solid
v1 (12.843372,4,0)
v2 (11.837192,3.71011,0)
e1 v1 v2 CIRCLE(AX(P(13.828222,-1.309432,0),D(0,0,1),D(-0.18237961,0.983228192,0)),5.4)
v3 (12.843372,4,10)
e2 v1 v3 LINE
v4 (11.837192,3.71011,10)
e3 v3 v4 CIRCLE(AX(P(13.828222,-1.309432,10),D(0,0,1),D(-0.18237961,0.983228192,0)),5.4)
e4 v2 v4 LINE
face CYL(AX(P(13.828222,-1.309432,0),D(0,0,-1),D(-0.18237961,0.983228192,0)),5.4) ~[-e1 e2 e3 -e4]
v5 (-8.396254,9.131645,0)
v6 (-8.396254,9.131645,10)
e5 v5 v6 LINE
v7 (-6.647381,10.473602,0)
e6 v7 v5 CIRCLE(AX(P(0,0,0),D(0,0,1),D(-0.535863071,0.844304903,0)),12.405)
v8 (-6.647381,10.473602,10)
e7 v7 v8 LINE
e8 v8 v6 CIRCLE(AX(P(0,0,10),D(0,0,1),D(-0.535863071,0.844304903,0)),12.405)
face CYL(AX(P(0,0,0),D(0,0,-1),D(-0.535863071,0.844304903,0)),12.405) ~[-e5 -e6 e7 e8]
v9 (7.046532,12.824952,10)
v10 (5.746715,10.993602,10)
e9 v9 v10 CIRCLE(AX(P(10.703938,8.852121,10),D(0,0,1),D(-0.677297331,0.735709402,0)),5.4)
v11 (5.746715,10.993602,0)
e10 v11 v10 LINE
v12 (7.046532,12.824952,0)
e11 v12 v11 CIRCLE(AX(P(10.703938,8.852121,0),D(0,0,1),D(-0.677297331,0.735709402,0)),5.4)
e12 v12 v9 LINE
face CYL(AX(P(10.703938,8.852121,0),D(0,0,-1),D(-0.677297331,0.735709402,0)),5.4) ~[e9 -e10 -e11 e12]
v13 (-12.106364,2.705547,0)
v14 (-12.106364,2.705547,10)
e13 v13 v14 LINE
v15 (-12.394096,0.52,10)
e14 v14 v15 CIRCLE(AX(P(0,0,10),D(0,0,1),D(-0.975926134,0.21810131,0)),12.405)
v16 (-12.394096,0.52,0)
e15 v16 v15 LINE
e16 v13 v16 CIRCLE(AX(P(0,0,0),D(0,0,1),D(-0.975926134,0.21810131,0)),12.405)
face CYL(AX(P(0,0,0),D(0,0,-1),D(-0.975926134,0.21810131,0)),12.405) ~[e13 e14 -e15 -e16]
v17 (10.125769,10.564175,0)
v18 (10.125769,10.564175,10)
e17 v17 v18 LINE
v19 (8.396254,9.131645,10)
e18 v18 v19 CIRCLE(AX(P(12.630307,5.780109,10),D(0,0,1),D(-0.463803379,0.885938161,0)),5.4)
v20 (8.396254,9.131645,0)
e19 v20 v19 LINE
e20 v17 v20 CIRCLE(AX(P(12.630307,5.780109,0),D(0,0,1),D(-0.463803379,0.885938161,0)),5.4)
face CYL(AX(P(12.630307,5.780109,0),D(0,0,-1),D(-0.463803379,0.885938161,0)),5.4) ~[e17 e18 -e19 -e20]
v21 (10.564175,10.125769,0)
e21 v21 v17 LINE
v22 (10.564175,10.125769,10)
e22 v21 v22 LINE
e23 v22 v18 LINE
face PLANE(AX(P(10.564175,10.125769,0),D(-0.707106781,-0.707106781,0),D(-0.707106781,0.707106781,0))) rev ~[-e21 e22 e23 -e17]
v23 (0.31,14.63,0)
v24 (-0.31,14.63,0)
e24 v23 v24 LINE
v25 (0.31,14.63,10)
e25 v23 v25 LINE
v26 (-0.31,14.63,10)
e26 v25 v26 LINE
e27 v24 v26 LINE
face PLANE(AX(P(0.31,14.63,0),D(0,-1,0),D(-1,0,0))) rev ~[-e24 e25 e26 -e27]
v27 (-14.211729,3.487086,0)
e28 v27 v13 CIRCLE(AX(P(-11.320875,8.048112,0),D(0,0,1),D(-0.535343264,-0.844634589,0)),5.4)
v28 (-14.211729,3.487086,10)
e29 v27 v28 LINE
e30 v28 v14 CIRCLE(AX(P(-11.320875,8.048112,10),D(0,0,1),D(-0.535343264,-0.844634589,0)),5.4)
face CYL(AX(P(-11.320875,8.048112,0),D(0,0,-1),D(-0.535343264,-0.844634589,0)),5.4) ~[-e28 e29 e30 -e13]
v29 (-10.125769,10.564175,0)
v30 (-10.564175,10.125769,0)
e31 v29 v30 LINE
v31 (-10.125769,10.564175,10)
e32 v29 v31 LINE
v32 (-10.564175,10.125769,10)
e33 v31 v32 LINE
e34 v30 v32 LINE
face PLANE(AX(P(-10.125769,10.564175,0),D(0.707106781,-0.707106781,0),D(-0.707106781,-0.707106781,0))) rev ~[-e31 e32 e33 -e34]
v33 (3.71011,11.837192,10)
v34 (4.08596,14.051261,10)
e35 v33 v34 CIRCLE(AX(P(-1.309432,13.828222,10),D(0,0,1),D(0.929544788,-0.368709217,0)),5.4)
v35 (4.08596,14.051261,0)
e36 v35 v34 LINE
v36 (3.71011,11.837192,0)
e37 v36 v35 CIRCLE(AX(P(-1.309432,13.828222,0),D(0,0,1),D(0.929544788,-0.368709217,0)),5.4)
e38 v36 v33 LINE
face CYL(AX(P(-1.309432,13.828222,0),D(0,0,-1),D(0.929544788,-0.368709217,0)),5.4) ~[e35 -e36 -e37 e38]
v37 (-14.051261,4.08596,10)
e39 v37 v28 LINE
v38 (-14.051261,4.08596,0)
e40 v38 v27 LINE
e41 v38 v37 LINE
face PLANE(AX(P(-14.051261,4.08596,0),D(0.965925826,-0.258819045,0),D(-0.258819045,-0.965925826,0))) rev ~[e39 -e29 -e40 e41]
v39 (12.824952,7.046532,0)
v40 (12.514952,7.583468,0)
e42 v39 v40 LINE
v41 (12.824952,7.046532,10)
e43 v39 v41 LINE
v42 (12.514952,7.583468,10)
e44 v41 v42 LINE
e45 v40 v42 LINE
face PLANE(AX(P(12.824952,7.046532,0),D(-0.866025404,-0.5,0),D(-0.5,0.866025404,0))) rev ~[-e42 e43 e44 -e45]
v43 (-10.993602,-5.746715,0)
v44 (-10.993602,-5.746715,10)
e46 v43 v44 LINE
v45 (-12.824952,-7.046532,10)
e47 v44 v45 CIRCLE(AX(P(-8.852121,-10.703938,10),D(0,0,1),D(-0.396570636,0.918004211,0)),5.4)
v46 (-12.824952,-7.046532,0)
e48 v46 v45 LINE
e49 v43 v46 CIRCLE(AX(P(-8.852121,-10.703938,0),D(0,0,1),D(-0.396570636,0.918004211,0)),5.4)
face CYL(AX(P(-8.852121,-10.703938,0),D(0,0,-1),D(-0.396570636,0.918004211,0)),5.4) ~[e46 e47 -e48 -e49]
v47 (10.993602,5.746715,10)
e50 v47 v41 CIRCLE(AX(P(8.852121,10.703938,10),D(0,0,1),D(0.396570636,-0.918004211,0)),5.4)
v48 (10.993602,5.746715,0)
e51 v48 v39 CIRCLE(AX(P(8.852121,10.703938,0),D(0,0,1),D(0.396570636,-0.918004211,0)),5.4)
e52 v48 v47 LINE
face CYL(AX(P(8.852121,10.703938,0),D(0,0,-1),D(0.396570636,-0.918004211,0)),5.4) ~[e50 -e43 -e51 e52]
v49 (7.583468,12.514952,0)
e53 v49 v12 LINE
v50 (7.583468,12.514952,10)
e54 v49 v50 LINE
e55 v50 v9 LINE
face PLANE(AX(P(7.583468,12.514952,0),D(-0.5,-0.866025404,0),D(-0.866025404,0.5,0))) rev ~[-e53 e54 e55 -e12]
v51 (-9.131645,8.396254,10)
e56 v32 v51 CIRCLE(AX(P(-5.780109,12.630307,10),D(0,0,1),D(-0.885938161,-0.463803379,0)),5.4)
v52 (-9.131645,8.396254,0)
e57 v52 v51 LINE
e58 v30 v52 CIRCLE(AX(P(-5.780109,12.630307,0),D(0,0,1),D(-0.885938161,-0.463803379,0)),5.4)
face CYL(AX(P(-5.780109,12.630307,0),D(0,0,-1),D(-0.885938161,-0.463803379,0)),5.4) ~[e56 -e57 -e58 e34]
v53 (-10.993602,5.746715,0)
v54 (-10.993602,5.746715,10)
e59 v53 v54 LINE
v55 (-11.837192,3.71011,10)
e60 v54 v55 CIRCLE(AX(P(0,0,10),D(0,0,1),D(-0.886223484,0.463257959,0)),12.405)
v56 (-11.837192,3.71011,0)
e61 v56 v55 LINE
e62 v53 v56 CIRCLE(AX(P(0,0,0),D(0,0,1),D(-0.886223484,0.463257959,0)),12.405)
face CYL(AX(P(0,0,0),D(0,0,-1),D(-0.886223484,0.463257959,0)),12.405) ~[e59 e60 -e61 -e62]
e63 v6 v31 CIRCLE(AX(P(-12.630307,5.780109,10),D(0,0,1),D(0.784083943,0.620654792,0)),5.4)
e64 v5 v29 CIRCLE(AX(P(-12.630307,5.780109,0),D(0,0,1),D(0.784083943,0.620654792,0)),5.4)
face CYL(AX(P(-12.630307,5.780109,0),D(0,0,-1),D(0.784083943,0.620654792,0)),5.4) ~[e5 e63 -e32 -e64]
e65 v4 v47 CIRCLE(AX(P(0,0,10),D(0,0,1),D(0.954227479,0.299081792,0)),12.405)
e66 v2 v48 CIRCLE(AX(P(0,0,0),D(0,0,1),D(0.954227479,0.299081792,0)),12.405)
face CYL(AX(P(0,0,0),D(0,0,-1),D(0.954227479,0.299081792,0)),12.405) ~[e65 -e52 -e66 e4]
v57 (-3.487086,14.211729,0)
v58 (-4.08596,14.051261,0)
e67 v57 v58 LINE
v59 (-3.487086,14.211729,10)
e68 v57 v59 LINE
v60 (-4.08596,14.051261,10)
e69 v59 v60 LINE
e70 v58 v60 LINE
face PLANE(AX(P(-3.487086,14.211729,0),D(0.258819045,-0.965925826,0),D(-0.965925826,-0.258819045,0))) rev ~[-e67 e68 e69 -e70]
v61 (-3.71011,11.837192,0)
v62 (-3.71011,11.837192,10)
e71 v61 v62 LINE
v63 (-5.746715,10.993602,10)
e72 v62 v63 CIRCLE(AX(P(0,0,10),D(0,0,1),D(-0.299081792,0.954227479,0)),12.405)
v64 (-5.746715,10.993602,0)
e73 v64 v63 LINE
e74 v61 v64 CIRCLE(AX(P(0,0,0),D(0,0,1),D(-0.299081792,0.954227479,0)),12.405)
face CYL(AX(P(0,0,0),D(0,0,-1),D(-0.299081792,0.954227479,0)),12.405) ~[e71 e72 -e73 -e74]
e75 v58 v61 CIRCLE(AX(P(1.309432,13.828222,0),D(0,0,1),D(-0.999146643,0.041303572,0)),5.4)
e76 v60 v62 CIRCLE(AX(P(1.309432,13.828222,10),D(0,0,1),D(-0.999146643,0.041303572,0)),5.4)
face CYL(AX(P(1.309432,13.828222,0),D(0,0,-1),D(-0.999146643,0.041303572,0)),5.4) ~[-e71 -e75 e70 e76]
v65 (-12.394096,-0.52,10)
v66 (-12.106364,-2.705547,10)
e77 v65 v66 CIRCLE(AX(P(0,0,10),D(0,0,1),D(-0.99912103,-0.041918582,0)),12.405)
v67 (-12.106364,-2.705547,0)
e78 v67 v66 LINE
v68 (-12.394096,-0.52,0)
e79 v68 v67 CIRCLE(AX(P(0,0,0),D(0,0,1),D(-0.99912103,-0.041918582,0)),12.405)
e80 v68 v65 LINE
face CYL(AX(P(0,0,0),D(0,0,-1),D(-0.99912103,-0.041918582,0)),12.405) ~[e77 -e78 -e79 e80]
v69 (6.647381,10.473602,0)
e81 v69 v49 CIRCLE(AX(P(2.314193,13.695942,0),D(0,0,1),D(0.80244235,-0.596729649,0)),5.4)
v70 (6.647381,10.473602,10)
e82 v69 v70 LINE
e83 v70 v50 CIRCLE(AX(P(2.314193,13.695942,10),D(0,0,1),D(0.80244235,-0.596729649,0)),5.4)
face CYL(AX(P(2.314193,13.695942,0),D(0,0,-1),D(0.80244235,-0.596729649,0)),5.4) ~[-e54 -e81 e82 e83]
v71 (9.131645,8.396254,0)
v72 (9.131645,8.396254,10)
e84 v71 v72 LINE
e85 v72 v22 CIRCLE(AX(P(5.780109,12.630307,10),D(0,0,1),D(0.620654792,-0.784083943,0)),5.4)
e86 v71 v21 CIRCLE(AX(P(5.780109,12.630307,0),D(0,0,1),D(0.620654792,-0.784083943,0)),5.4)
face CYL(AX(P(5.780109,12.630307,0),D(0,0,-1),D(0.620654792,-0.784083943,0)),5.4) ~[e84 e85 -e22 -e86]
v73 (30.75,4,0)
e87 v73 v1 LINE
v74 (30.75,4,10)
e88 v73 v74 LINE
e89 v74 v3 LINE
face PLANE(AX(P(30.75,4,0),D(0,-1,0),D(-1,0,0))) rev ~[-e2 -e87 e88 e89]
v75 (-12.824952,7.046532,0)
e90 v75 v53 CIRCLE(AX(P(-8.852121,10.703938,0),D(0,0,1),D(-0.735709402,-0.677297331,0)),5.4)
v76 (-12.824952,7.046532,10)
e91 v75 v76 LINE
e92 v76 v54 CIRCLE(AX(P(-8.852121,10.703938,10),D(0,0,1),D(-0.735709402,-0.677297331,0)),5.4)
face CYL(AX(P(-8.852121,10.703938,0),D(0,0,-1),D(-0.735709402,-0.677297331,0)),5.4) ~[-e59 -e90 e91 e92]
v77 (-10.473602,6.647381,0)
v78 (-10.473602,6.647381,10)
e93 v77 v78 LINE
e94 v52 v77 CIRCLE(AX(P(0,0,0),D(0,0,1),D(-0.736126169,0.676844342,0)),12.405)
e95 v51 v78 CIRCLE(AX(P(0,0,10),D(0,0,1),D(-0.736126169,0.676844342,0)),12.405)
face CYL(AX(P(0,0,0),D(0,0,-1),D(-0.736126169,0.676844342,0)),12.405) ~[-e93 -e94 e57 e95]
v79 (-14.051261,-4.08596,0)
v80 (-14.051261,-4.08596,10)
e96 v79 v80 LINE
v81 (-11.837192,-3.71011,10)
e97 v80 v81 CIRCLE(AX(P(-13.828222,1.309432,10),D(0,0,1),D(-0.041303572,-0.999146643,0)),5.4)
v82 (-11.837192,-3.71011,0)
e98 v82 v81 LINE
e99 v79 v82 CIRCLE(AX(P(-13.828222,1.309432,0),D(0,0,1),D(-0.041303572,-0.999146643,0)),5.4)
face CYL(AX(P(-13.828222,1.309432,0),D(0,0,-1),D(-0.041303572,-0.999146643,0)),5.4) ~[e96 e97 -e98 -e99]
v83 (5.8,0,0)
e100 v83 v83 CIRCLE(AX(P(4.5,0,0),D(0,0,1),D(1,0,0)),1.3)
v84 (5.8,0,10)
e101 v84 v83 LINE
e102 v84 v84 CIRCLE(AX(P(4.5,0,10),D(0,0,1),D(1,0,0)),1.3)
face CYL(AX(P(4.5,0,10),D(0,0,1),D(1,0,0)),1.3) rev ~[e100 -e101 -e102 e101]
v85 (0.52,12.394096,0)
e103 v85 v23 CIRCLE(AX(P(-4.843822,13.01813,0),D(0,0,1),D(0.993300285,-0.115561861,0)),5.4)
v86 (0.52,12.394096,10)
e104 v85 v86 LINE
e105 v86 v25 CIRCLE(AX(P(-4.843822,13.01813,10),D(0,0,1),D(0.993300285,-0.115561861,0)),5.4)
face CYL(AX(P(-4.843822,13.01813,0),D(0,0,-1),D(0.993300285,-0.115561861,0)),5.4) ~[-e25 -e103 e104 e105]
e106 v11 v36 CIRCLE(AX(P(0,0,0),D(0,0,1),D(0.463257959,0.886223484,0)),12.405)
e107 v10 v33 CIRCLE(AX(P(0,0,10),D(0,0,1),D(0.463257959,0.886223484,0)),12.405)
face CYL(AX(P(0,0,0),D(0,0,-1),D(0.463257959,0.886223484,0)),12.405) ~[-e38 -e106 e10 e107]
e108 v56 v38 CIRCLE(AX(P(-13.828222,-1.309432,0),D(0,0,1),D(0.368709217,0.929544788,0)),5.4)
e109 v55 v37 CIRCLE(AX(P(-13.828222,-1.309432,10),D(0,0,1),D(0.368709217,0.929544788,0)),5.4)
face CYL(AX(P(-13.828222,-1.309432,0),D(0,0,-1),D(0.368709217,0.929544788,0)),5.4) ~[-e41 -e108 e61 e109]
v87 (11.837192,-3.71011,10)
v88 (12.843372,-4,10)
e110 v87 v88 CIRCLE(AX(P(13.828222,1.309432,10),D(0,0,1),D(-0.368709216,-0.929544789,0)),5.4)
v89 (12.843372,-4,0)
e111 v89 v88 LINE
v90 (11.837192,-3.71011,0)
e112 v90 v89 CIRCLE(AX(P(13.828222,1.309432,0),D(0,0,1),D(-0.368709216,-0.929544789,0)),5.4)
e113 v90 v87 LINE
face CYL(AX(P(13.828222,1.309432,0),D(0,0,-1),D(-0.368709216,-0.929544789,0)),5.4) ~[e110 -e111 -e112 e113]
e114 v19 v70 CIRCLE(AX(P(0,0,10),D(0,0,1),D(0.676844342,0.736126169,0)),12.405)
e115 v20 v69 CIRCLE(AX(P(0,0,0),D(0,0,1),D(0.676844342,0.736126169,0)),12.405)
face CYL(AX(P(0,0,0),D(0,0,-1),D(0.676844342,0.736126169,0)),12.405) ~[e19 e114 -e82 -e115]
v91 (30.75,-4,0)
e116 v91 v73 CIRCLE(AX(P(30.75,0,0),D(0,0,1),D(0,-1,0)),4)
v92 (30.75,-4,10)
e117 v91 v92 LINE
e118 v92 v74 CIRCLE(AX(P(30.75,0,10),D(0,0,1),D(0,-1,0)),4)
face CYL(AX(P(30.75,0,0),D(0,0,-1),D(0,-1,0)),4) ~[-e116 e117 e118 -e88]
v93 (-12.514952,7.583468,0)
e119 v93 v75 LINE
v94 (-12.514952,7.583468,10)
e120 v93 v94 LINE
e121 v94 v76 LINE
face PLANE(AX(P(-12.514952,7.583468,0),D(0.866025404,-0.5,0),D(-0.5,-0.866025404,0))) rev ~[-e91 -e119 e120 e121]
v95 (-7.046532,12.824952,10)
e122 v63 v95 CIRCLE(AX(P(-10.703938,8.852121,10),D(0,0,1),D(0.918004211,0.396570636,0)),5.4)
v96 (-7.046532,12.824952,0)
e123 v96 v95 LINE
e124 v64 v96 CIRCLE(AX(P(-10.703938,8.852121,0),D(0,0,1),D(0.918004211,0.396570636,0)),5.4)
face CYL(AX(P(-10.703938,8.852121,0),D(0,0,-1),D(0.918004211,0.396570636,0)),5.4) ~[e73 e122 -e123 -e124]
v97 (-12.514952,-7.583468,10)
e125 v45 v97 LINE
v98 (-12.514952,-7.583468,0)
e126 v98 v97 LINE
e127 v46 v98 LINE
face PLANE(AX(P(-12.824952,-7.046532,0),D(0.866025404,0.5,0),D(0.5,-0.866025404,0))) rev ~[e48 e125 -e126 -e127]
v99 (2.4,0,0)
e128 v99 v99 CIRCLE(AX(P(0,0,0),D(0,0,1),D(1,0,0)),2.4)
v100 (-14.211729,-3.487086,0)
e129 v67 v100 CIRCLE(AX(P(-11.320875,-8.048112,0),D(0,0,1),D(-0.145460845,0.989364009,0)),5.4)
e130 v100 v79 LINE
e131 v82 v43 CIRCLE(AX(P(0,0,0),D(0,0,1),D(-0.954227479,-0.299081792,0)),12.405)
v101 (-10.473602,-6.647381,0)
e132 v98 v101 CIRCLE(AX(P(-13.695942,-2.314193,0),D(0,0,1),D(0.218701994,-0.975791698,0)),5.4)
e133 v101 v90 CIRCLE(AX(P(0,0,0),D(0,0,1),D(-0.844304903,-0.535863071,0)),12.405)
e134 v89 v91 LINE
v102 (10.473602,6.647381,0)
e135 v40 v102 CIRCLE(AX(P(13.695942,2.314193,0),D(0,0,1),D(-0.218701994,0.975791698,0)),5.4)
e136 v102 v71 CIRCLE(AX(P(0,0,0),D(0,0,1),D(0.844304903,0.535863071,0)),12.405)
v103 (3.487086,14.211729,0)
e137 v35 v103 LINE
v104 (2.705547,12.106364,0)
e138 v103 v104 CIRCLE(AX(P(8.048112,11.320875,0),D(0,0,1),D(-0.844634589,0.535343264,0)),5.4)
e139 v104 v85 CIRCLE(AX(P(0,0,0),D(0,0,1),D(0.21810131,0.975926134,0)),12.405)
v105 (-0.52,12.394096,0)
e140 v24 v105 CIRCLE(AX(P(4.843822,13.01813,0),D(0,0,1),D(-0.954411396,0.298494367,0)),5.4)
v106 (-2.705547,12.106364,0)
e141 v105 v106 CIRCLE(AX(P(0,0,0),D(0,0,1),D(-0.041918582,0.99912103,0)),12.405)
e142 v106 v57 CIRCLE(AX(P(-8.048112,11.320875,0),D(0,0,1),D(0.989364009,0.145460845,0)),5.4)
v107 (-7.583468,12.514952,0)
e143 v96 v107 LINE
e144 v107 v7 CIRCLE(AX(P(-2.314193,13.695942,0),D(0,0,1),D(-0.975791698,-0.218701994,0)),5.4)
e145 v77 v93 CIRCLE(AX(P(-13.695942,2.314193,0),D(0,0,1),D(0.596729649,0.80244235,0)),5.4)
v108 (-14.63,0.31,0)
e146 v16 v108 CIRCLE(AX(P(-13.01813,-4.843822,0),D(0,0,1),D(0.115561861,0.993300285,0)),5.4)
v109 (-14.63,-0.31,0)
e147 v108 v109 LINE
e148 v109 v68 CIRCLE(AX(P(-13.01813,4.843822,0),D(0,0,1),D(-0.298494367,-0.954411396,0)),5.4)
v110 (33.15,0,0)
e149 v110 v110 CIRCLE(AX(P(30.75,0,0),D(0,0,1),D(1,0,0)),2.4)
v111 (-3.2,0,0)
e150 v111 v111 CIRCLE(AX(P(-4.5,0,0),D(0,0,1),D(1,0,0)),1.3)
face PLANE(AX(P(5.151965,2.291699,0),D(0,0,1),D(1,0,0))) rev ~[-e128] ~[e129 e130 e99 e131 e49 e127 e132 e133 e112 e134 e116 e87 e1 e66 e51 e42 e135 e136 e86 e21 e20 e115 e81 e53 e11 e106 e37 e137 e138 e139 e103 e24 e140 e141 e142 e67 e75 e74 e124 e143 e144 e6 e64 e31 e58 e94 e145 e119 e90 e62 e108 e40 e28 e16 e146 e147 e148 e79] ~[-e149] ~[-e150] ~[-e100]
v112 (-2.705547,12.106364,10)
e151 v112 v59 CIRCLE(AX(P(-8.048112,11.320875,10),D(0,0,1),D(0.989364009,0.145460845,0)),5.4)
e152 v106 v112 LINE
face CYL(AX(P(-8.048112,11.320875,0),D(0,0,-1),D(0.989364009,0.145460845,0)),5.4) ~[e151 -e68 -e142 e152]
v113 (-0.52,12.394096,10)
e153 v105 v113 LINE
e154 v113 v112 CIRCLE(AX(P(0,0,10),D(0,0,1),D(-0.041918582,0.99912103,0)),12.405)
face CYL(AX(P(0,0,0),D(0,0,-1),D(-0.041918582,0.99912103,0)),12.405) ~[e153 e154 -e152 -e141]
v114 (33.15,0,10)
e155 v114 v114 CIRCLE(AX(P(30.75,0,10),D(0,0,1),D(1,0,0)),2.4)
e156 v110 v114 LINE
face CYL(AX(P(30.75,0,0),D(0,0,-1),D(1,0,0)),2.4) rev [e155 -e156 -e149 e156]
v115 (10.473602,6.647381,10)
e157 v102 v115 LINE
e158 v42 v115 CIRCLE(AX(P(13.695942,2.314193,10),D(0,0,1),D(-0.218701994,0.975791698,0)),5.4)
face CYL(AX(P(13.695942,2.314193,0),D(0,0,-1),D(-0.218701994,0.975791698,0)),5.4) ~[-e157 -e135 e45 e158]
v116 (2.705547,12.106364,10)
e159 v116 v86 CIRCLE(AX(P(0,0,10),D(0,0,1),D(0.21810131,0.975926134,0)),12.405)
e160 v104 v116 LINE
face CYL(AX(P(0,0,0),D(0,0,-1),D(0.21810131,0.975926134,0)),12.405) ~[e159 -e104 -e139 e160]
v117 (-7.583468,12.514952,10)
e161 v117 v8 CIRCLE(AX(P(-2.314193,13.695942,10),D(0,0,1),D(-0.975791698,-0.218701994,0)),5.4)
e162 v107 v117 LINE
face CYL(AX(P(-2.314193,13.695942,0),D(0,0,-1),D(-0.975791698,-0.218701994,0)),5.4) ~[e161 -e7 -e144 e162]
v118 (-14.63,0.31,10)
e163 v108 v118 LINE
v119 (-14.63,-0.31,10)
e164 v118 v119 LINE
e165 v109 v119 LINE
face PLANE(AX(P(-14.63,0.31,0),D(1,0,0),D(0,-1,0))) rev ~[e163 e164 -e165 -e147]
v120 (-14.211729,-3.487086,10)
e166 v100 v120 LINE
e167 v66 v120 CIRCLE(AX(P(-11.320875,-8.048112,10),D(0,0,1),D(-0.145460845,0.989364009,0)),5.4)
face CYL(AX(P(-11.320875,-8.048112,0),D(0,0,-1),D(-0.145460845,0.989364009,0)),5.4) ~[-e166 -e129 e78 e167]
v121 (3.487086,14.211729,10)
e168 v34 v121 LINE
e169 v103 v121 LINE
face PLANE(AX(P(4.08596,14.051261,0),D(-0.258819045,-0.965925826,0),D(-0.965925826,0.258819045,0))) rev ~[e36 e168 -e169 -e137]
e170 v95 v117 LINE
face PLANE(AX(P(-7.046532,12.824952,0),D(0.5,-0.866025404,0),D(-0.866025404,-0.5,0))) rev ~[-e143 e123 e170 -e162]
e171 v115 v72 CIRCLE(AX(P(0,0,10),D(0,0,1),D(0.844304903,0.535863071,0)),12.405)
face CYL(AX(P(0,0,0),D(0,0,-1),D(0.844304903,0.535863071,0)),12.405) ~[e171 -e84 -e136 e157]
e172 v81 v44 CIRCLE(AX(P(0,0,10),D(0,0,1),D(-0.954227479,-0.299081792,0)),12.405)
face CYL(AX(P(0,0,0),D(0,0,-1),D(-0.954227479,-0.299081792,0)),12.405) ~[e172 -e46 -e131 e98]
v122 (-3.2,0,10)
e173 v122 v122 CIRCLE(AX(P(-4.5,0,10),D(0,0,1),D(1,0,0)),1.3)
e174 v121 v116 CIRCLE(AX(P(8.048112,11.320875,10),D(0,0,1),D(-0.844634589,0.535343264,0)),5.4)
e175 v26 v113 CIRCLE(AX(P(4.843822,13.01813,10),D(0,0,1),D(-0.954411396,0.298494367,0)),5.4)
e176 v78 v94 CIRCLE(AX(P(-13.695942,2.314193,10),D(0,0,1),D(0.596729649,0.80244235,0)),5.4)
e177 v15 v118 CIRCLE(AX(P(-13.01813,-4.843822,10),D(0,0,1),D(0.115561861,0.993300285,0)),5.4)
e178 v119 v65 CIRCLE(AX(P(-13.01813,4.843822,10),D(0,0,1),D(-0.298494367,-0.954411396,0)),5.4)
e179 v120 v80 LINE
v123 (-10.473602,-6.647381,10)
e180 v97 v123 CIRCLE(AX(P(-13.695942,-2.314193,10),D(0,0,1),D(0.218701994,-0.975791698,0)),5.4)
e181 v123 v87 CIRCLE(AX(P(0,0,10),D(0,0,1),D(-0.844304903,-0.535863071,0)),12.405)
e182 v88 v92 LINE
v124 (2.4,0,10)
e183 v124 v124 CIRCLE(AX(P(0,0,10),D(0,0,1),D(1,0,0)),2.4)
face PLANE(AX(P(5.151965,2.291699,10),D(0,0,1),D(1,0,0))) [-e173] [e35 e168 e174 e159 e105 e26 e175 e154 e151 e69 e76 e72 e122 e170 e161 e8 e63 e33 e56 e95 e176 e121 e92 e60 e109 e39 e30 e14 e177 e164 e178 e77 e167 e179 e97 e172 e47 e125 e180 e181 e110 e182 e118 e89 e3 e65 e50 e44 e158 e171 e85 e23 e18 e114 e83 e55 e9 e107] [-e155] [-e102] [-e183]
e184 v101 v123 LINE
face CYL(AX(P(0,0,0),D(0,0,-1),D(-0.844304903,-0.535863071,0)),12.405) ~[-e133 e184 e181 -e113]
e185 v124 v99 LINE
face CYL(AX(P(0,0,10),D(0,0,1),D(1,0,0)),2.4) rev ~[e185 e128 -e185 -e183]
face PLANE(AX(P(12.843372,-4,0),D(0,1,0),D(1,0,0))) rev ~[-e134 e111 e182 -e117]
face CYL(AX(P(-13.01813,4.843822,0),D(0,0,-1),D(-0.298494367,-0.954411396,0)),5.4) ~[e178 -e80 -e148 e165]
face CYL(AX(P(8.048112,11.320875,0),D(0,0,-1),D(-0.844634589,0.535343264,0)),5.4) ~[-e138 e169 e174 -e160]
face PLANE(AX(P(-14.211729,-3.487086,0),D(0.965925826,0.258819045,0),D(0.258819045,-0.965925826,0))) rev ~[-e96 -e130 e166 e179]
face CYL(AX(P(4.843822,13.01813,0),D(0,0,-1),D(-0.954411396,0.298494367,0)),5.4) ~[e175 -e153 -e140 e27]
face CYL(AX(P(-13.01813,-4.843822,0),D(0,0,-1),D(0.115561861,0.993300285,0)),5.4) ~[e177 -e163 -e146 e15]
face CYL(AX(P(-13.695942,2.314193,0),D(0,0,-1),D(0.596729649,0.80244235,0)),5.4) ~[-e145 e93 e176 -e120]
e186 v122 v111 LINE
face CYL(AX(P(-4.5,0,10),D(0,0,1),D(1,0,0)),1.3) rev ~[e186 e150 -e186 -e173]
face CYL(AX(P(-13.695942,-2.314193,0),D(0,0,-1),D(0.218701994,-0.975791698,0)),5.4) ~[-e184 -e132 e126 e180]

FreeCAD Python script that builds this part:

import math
import FreeCAD as App
import Part
import Sketcher
from FreeCAD import Vector
Q = App.Units.Quantity

doc = App.newDocument("Part")
body = doc.addObject("PartDesign::Body", "Body")

sketch1 = doc.addObject("Sketcher::SketchObject", "Sketch")
body.addObject(sketch1)
sketch1.AttachmentSupport = (doc.XY_Plane, [""])
sketch1.MapMode = "FlatFace"
sketch1.addGeometry(Part.LineSegment(Vector(0.3, 14.6, 0), Vector(-0.3, 14.6, 0)), False)
sketch1.addGeometry(Part.ArcOfCircle(Part.Circle(Vector(4.8, 13, 0), Vector(0, 0, 1), 5.4), math.radians(163), math.radians(187)), False)
sketch1.addGeometry(Part.ArcOfCircle(Part.Circle(Vector(0, 0, 0), Vector(0, 0, 1), 12.4), math.radians(92.4), math.radians(102.6)), False)
sketch1.addGeometry(Part.ArcOfCircle(Part.Circle(Vector(-8, 11.3, 0), Vector(0, 0, 1), 5.4), math.radians(8), math.radians(32)), False)
sketch1.addGeometry(Part.LineSegment(Vector(-3.5, 14.2, 0), Vector(-4.1, 14.1, 0)), False)
sketch1.addGeometry(Part.ArcOfCircle(Part.Circle(Vector(1.3, 13.8, 0), Vector(0, 0, 1), 5.4), math.radians(178), math.radians(202)), False)
sketch1.addGeometry(Part.ArcOfCircle(Part.Circle(Vector(0, 0, 0), Vector(0, 0, 1), 12.4), math.radians(107.4), math.radians(117.6)), False)
sketch1.addGeometry(Part.ArcOfCircle(Part.Circle(Vector(-10.7, 8.9, 0), Vector(0, 0, 1), 5.4), math.radians(23), math.radians(47)), False)
sketch1.addGeometry(Part.LineSegment(Vector(-7, 12.8, 0), Vector(-7.6, 12.5, 0)), False)
sketch1.addGeometry(Part.ArcOfCircle(Part.Circle(Vector(-2.3, 13.7, 0), Vector(0, 0, 1), 5.4), math.radians(-167), math.radians(-143)), False)
sketch1.addGeometry(Part.ArcOfCircle(Part.Circle(Vector(0, 0, 0), Vector(0, 0, 1), 12.4), math.radians(122.4), math.radians(132.6)), False)
sketch1.addGeometry(Part.ArcOfCircle(Part.Circle(Vector(-12.6, 5.8, 0), Vector(0, 0, 1), 5.4), math.radians(38), math.radians(62)), False)
sketch1.addGeometry(Part.LineSegment(Vector(-10.1, 10.6, 0), Vector(-10.6, 10.1, 0)), False)
sketch1.addGeometry(Part.ArcOfCircle(Part.Circle(Vector(-5.8, 12.6, 0), Vector(0, 0, 1), 5.4), math.radians(-152), math.radians(-128)), False)
sketch1.addGeometry(Part.ArcOfCircle(Part.Circle(Vector(0, 0, 0), Vector(0, 0, 1), 12.4), math.radians(137.4), math.radians(147.6)), False)
sketch1.addGeometry(Part.ArcOfCircle(Part.Circle(Vector(-13.7, 2.3, 0), Vector(0, 0, 1), 5.4), math.radians(53), math.radians(77)), False)
sketch1.addGeometry(Part.LineSegment(Vector(-12.5, 7.6, 0), Vector(-12.8, 7, 0)), False)
sketch1.addGeometry(Part.ArcOfCircle(Part.Circle(Vector(-8.9, 10.7, 0), Vector(0, 0, 1), 5.4), math.radians(-137), math.radians(-113)), False)
sketch1.addGeometry(Part.ArcOfCircle(Part.Circle(Vector(0, 0, 0), Vector(0, 0, 1), 12.4), math.radians(152.4), math.radians(162.6)), False)
sketch1.addGeometry(Part.ArcOfCircle(Part.Circle(Vector(-13.8, -1.3, 0), Vector(0, 0, 1), 5.4), math.radians(68), math.radians(92)), False)
sketch1.addGeometry(Part.LineSegment(Vector(-14.1, 4.1, 0), Vector(-14.2, 3.5, 0)), False)
sketch1.addGeometry(Part.ArcOfCircle(Part.Circle(Vector(-11.3, 8, 0), Vector(0, 0, 1), 5.4), math.radians(-122), math.radians(-98)), False)
sketch1.addGeometry(Part.ArcOfCircle(Part.Circle(Vector(0, 0, 0), Vector(0, 0, 1), 12.4), math.radians(167.4), math.radians(177.6)), False)
sketch1.addGeometry(Part.ArcOfCircle(Part.Circle(Vector(-13, -4.8, 0), Vector(0, 0, 1), 5.4), math.radians(83), math.radians(107)), False)
sketch1.addGeometry(Part.LineSegment(Vector(-14.6, 0.3, 0), Vector(-14.6, -0.3, 0)), False)
sketch1.addGeometry(Part.ArcOfCircle(Part.Circle(Vector(-13, 4.8, 0), Vector(0, 0, 1), 5.4), math.radians(-107), math.radians(-83)), False)
sketch1.addGeometry(Part.ArcOfCircle(Part.Circle(Vector(0, 0, 0), Vector(0, 0, 1), 12.4), math.radians(-177.6), math.radians(-167.4)), False)
sketch1.addGeometry(Part.ArcOfCircle(Part.Circle(Vector(-11.3, -8, 0), Vector(0, 0, 1), 5.4), math.radians(98), math.radians(122)), False)
sketch1.addGeometry(Part.LineSegment(Vector(-14.2, -3.5, 0), Vector(-14.1, -4.1, 0)), False)
sketch1.addGeometry(Part.ArcOfCircle(Part.Circle(Vector(-13.8, 1.3, 0), Vector(0, 0, 1), 5.4), math.radians(-92), math.radians(-68)), False)
sketch1.addGeometry(Part.ArcOfCircle(Part.Circle(Vector(0, 0, 0), Vector(0, 0, 1), 12.4), math.radians(-162.6), math.radians(-152.4)), False)
sketch1.addGeometry(Part.ArcOfCircle(Part.Circle(Vector(-8.9, -10.7, 0), Vector(0, 0, 1), 5.4), math.radians(113), math.radians(137)), False)
sketch1.addGeometry(Part.LineSegment(Vector(-12.8, -7, 0), Vector(-12.5, -7.6, 0)), False)
sketch1.addGeometry(Part.ArcOfCircle(Part.Circle(Vector(-13.7, -2.3, 0), Vector(0, 0, 1), 5.4), math.radians(-77), math.radians(-53)), False)
sketch1.addGeometry(Part.ArcOfCircle(Part.Circle(Vector(0, 0, 0), Vector(0, 0, 1), 12.4), math.radians(-148), math.radians(-17)), False)
sketch1.addGeometry(Part.ArcOfCircle(Part.Circle(Vector(13.8, 1.3, 0), Vector(0, 0, 1), 5.4), math.radians(-111.64), math.radians(-100.51)), False)
sketch1.addGeometry(Part.LineSegment(Vector(12.8, -4, 0), Vector(30.8, -4, 0)), False)
sketch1.addGeometry(Part.ArcOfCircle(Part.Circle(Vector(30.8, 0, 0), Vector(0, 0, 1), 4), math.radians(-90), math.radians(90)), False)
sketch1.addGeometry(Part.LineSegment(Vector(30.8, 4, 0), Vector(12.8, 4, 0)), False)
sketch1.addGeometry(Part.ArcOfCircle(Part.Circle(Vector(13.8, -1.3, 0), Vector(0, 0, 1), 5.4), math.radians(100.51), math.radians(111.64)), False)
sketch1.addGeometry(Part.ArcOfCircle(Part.Circle(Vector(0, 0, 0), Vector(0, 0, 1), 12.4), math.radians(17.4), math.radians(27.6)), False)
sketch1.addGeometry(Part.ArcOfCircle(Part.Circle(Vector(8.9, 10.7, 0), Vector(0, 0, 1), 5.4), math.radians(-67), math.radians(-43)), False)
sketch1.addGeometry(Part.LineSegment(Vector(12.8, 7, 0), Vector(12.5, 7.6, 0)), False)
sketch1.addGeometry(Part.ArcOfCircle(Part.Circle(Vector(13.7, 2.3, 0), Vector(0, 0, 1), 5.4), math.radians(103), math.radians(127)), False)
sketch1.addGeometry(Part.ArcOfCircle(Part.Circle(Vector(0, 0, 0), Vector(0, 0, 1), 12.4), math.radians(32.4), math.radians(42.6)), False)
sketch1.addGeometry(Part.ArcOfCircle(Part.Circle(Vector(5.8, 12.6, 0), Vector(0, 0, 1), 5.4), math.radians(-52), math.radians(-28)), False)
sketch1.addGeometry(Part.LineSegment(Vector(10.6, 10.1, 0), Vector(10.1, 10.6, 0)), False)
sketch1.addGeometry(Part.ArcOfCircle(Part.Circle(Vector(12.6, 5.8, 0), Vector(0, 0, 1), 5.4), math.radians(118), math.radians(142)), False)
sketch1.addGeometry(Part.ArcOfCircle(Part.Circle(Vector(0, 0, 0), Vector(0, 0, 1), 12.4), math.radians(47.4), math.radians(57.6)), False)
sketch1.addGeometry(Part.ArcOfCircle(Part.Circle(Vector(2.3, 13.7, 0), Vector(0, 0, 1), 5.4), math.radians(-37), math.radians(-13)), False)
sketch1.addGeometry(Part.LineSegment(Vector(7.6, 12.5, 0), Vector(7, 12.8, 0)), False)
sketch1.addGeometry(Part.ArcOfCircle(Part.Circle(Vector(10.7, 8.9, 0), Vector(0, 0, 1), 5.4), math.radians(133), math.radians(157)), False)
sketch1.addGeometry(Part.ArcOfCircle(Part.Circle(Vector(0, 0, 0), Vector(0, 0, 1), 12.4), math.radians(62.4), math.radians(72.6)), False)
sketch1.addGeometry(Part.ArcOfCircle(Part.Circle(Vector(-1.3, 13.8, 0), Vector(0, 0, 1), 5.4), math.radians(-22), math.radians(2)), False)
sketch1.addGeometry(Part.LineSegment(Vector(4.1, 14.1, 0), Vector(3.5, 14.2, 0)), False)
sketch1.addGeometry(Part.ArcOfCircle(Part.Circle(Vector(8, 11.3, 0), Vector(0, 0, 1), 5.4), math.radians(148), math.radians(172)), False)
sketch1.addGeometry(Part.ArcOfCircle(Part.Circle(Vector(0, 0, 0), Vector(0, 0, 1), 12.4), math.radians(77.4), math.radians(87.6)), False)
sketch1.addGeometry(Part.ArcOfCircle(Part.Circle(Vector(-4.8, 13, 0), Vector(0, 0, 1), 5.4), math.radians(-7), math.radians(17)), False)
sketch1.addGeometry(Part.Circle(Vector(0, 0, 0), Vector(0, 0, 1), 2), False)
sketch1.addGeometry(Part.Circle(Vector(30.8, 0, 0), Vector(0, 0, 1), 2.4), False)
sketch1.addConstraint(Sketcher.Constraint("Coincident", 0, 2, 1, 1))
sketch1.addConstraint(Sketcher.Constraint("Coincident", 1, 2, 2, 1))
sketch1.addConstraint(Sketcher.Constraint("Coincident", 2, 2, 3, 1))
sketch1.addConstraint(Sketcher.Constraint("Coincident", 3, 2, 4, 1))
sketch1.addConstraint(Sketcher.Constraint("Coincident", 4, 2, 5, 1))
sketch1.addConstraint(Sketcher.Constraint("Coincident", 5, 2, 6, 1))
sketch1.addConstraint(Sketcher.Constraint("Coincident", 6, 2, 7, 1))
sketch1.addConstraint(Sketcher.Constraint("Coincident", 7, 2, 8, 1))
sketch1.addConstraint(Sketcher.Constraint("Coincident", 8, 2, 9, 1))
sketch1.addConstraint(Sketcher.Constraint("Coincident", 9, 2, 10, 1))
sketch1.addConstraint(Sketcher.Constraint("Coincident", 10, 2, 11, 1))
sketch1.addConstraint(Sketcher.Constraint("Coincident", 11, 2, 12, 1))
sketch1.addConstraint(Sketcher.Constraint("Coincident", 12, 2, 13, 1))
sketch1.addConstraint(Sketcher.Constraint("Coincident", 13, 2, 14, 1))
sketch1.addConstraint(Sketcher.Constraint("Coincident", 14, 2, 15, 1))
sketch1.addConstraint(Sketcher.Constraint("Coincident", 15, 2, 16, 1))
sketch1.addConstraint(Sketcher.Constraint("Coincident", 16, 2, 17, 1))
sketch1.addConstraint(Sketcher.Constraint("Coincident", 17, 2, 18, 1))
sketch1.addConstraint(Sketcher.Constraint("Coincident", 18, 2, 19, 1))
sketch1.addConstraint(Sketcher.Constraint("Coincident", 19, 2, 20, 1))
sketch1.addConstraint(Sketcher.Constraint("Coincident", 20, 2, 21, 1))
sketch1.addConstraint(Sketcher.Constraint("Coincident", 21, 2, 22, 1))
sketch1.addConstraint(Sketcher.Constraint("Coincident", 22, 2, 23, 1))
sketch1.addConstraint(Sketcher.Constraint("Coincident", 23, 2, 24, 1))
sketch1.addConstraint(Sketcher.Constraint("Coincident", 24, 2, 25, 1))
sketch1.addConstraint(Sketcher.Constraint("Coincident", 25, 2, 26, 1))
sketch1.addConstraint(Sketcher.Constraint("Coincident", 26, 2, 27, 1))
sketch1.addConstraint(Sketcher.Constraint("Coincident", 27, 2, 28, 1))
sketch1.addConstraint(Sketcher.Constraint("Coincident", 28, 2, 29, 1))
sketch1.addConstraint(Sketcher.Constraint("Coincident", 29, 2, 30, 1))
sketch1.addConstraint(Sketcher.Constraint("Coincident", 30, 2, 31, 1))
sketch1.addConstraint(Sketcher.Constraint("Coincident", 31, 2, 32, 1))
sketch1.addConstraint(Sketcher.Constraint("Coincident", 32, 2, 33, 1))
sketch1.addConstraint(Sketcher.Constraint("Coincident", 33, 2, 34, 1))
sketch1.addConstraint(Sketcher.Constraint("Coincident", 34, 2, 35, 1))
sketch1.addConstraint(Sketcher.Constraint("Coincident", 35, 2, 36, 1))
sketch1.addConstraint(Sketcher.Constraint("Tangent", 36, 2, 37, 1))
sketch1.addConstraint(Sketcher.Constraint("Tangent", 37, 2, 38, 1))
sketch1.addConstraint(Sketcher.Constraint("Coincident", 38, 2, 39, 1))
sketch1.addConstraint(Sketcher.Constraint("Coincident", 39, 2, 40, 1))
sketch1.addConstraint(Sketcher.Constraint("Coincident", 40, 2, 41, 1))
sketch1.addConstraint(Sketcher.Constraint("Coincident", 41, 2, 42, 1))
sketch1.addConstraint(Sketcher.Constraint("Coincident", 42, 2, 43, 1))
sketch1.addConstraint(Sketcher.Constraint("Coincident", 43, 2, 44, 1))
sketch1.addConstraint(Sketcher.Constraint("Coincident", 44, 2, 45, 1))
sketch1.addConstraint(Sketcher.Constraint("Coincident", 45, 2, 46, 1))
sketch1.addConstraint(Sketcher.Constraint("Coincident", 46, 2, 47, 1))
sketch1.addConstraint(Sketcher.Constraint("Coincident", 47, 2, 48, 1))
sketch1.addConstraint(Sketcher.Constraint("Coincident", 48, 2, 49, 1))
sketch1.addConstraint(Sketcher.Constraint("Coincident", 49, 2, 50, 1))
sketch1.addConstraint(Sketcher.Constraint("Coincident", 50, 2, 51, 1))
sketch1.addConstraint(Sketcher.Constraint("Coincident", 51, 2, 52, 1))
sketch1.addConstraint(Sketcher.Constraint("Coincident", 52, 2, 53, 1))
sketch1.addConstraint(Sketcher.Constraint("Coincident", 53, 2, 54, 1))
sketch1.addConstraint(Sketcher.Constraint("Coincident", 54, 2, 55, 1))
sketch1.addConstraint(Sketcher.Constraint("Coincident", 55, 2, 56, 1))
sketch1.addConstraint(Sketcher.Constraint("Coincident", 56, 2, 57, 1))
sketch1.addConstraint(Sketcher.Constraint("Coincident", 57, 2, 0, 1))
sketch1.addConstraint(Sketcher.Constraint("Horizontal", 0))
sketch1.addConstraint(Sketcher.Constraint("Vertical", 24))
sketch1.addConstraint(Sketcher.Constraint("Horizontal", 36))
sketch1.addConstraint(Sketcher.Constraint("Horizontal", 38))
sketch1.addConstraint(Sketcher.Constraint("Coincident", 2, 3, -1, 1))
sketch1.addConstraint(Sketcher.Constraint("Coincident", 6, 3, -1, 1))
sketch1.addConstraint(Sketcher.Constraint("Coincident", 10, 3, -1, 1))
sketch1.addConstraint(Sketcher.Constraint("Coincident", 14, 3, -1, 1))
sketch1.addConstraint(Sketcher.Constraint("Coincident", 18, 3, -1, 1))
sketch1.addConstraint(Sketcher.Constraint("Coincident", 22, 3, -1, 1))
sketch1.addConstraint(Sketcher.Constraint("Coincident", 26, 3, -1, 1))
sketch1.addConstraint(Sketcher.Constraint("Coincident", 30, 3, -1, 1))
sketch1.addConstraint(Sketcher.Constraint("Coincident", 34, 3, -1, 1))
sketch1.addConstraint(Sketcher.Constraint("Coincident", 40, 3, -1, 1))
sketch1.addConstraint(Sketcher.Constraint("Coincident", 44, 3, -1, 1))
sketch1.addConstraint(Sketcher.Constraint("Coincident", 48, 3, -1, 1))
sketch1.addConstraint(Sketcher.Constraint("Coincident", 52, 3, -1, 1))
sketch1.addConstraint(Sketcher.Constraint("Coincident", 56, 3, -1, 1))
sketch1.addConstraint(Sketcher.Constraint("Coincident", 58, 3, -1, 1))
sketch1.addConstraint(Sketcher.Constraint("Coincident", 59, 3, 37, 3))
sketch1.addConstraint(Sketcher.Constraint("Equal", 1, 3))
sketch1.addConstraint(Sketcher.Constraint("Equal", 3, 5))
sketch1.addConstraint(Sketcher.Constraint("Equal", 2, 6))
sketch1.addConstraint(Sketcher.Constraint("Equal", 5, 7))
sketch1.addConstraint(Sketcher.Constraint("Equal", 7, 9))
sketch1.addConstraint(Sketcher.Constraint("Equal", 6, 10))
sketch1.addConstraint(Sketcher.Constraint("Equal", 9, 11))
sketch1.addConstraint(Sketcher.Constraint("Equal", 11, 13))
sketch1.addConstraint(Sketcher.Constraint("Equal", 10, 14))
sketch1.addConstraint(Sketcher.Constraint("Equal", 13, 15))
sketch1.addConstraint(Sketcher.Constraint("Equal", 15, 17))
sketch1.addConstraint(Sketcher.Constraint("Equal", 14, 18))
sketch1.addConstraint(Sketcher.Constraint("Equal", 17, 19))
sketch1.addConstraint(Sketcher.Constraint("Equal", 19, 21))
sketch1.addConstraint(Sketcher.Constraint("Equal", 18, 22))
sketch1.addConstraint(Sketcher.Constraint("Equal", 21, 23))
sketch1.addConstraint(Sketcher.Constraint("Equal", 23, 25))
sketch1.addConstraint(Sketcher.Constraint("Equal", 22, 26))
sketch1.addConstraint(Sketcher.Constraint("Equal", 25, 27))
sketch1.addConstraint(Sketcher.Constraint("Equal", 27, 29))
sketch1.addConstraint(Sketcher.Constraint("Equal", 26, 30))
sketch1.addConstraint(Sketcher.Constraint("Equal", 29, 31))
sketch1.addConstraint(Sketcher.Constraint("Equal", 31, 33))
sketch1.addConstraint(Sketcher.Constraint("Equal", 30, 34))
sketch1.addConstraint(Sketcher.Constraint("Equal", 33, 35))
sketch1.addConstraint(Sketcher.Constraint("Equal", 35, 39))
sketch1.addConstraint(Sketcher.Constraint("Equal", 34, 40))
sketch1.addConstraint(Sketcher.Constraint("Equal", 39, 41))
sketch1.addConstraint(Sketcher.Constraint("Equal", 41, 43))
sketch1.addConstraint(Sketcher.Constraint("Equal", 40, 44))
sketch1.addConstraint(Sketcher.Constraint("Equal", 43, 45))
sketch1.addConstraint(Sketcher.Constraint("Equal", 45, 47))
sketch1.addConstraint(Sketcher.Constraint("Equal", 44, 48))
sketch1.addConstraint(Sketcher.Constraint("Equal", 47, 49))
sketch1.addConstraint(Sketcher.Constraint("Equal", 49, 51))
sketch1.addConstraint(Sketcher.Constraint("Equal", 48, 52))
sketch1.addConstraint(Sketcher.Constraint("Equal", 51, 53))
sketch1.addConstraint(Sketcher.Constraint("Equal", 53, 55))
sketch1.addConstraint(Sketcher.Constraint("Equal", 52, 56))
sketch1.addConstraint(Sketcher.Constraint("Equal", 55, 57))
sketch1.addConstraint(Sketcher.Constraint("Symmetric", 19, 3, 35, 3, -1, 1))
sketch1.addConstraint(Sketcher.Constraint("Symmetric", 29, 3, 39, 3, -1, 1))
sketch1.addConstraint(Sketcher.Constraint("Symmetric", 31, 3, 41, 3, -1, 1))
sketch1.addConstraint(Sketcher.Constraint("Symmetric", 33, 3, 43, 3, -1, 1))
sketch1.addConstraint(Sketcher.Constraint("Symmetric", 29, 3, 35, 3, -2))
sketch1.addConstraint(Sketcher.Constraint("Symmetric", 17, 3, 41, 3, -2))
sketch1.addConstraint(Sketcher.Constraint("Symmetric", 15, 3, 43, 3, -2))
sketch1.addConstraint(Sketcher.Constraint("Symmetric", 13, 3, 45, 3, -2))
sketch1.addConstraint(Sketcher.Constraint("Symmetric", 11, 3, 47, 3, -2))
sketch1.addConstraint(Sketcher.Constraint("Symmetric", 9, 3, 49, 3, -2))
sketch1.addConstraint(Sketcher.Constraint("Symmetric", 7, 3, 51, 3, -2))
sketch1.addConstraint(Sketcher.Constraint("Symmetric", 5, 3, 53, 3, -2))
sketch1.addConstraint(Sketcher.Constraint("Symmetric", 3, 3, 55, 3, -2))
sketch1.addConstraint(Sketcher.Constraint("Symmetric", 1, 3, 57, 3, -2))
sketch1.addConstraint(Sketcher.Constraint("Symmetric", 23, 3, 25, 3, -1))
sketch1.addConstraint(Sketcher.Constraint("Symmetric", 21, 3, 27, 3, -1))
sketch1.addConstraint(Sketcher.Constraint("PointOnObject", 37, 3, -1))
sketch1.addConstraint(Sketcher.Constraint("Perpendicular", 4, 28))
sketch1.addConstraint(Sketcher.Constraint("Perpendicular", 8, 32))
sketch1.addConstraint(Sketcher.Constraint("Parallel", 32, 42))
sketch1.addConstraint(Sketcher.Constraint("Perpendicular", 12, 46))
sketch1.addConstraint(Sketcher.Constraint("Perpendicular", 16, 50))
sketch1.addConstraint(Sketcher.Constraint("Perpendicular", 20, 54))
sketch1.addConstraint(Sketcher.Constraint("Horizontal", 16, 2, 41, 2))
sketch1.addConstraint(Sketcher.Constraint("Horizontal", 15, 2, 42, 2))
sketch1.addConstraint(Sketcher.Constraint("Horizontal", 12, 2, 45, 2))
sketch1.addConstraint(Sketcher.Constraint("Horizontal", 11, 2, 46, 2))
sketch1.addConstraint(Sketcher.Constraint("Horizontal", 8, 2, 49, 2))
sketch1.addConstraint(Sketcher.Constraint("Horizontal", 4, 2, 53, 2))
sketch1.addConstraint(Sketcher.Constraint("Horizontal", 3, 2, 54, 2))
sketch1.addConstraint(Sketcher.Constraint("Vertical", 20, 2, 27, 2))
sketch1.addConstraint(Sketcher.Constraint("Vertical", 16, 2, 31, 2))
sketch1.addConstraint(Sketcher.Constraint("Equal", 0, 24))
sketch1.addConstraint(Sketcher.Constraint("Equal", 4, 8))
sketch1.addConstraint(Sketcher.Constraint("Equal", 8, 12))
sketch1.addConstraint(Sketcher.Constraint("Equal", 12, 16))
sketch1.addConstraint(Sketcher.Constraint("Equal", 16, 20))
sketch1.addConstraint(Sketcher.Constraint("Diameter", 58, Q("4 mm")))
sketch1.addConstraint(Sketcher.Constraint("Radius", 37, Q("4 mm")))
sketch1.addConstraint(Sketcher.Constraint("Diameter", 59, Q("4.8 mm")))
sketch1.addConstraint(Sketcher.Constraint("Radius", 1, Q("5.4 mm")))
sketch1.addConstraint(Sketcher.Constraint("Angle", 4, Q("-165 deg")))
sketch1.addConstraint(Sketcher.Constraint("Angle", 8, Q("-150 deg")))
sketch1.addConstraint(Sketcher.Constraint("Radius", 2, Q("12.405 mm")))
sketch1.addConstraint(Sketcher.Constraint("DistanceX", 0, 2, 0, 1, Q("0.62 mm")))
sketch1.addConstraint(Sketcher.Constraint("Distance", 4, Q("0.62 mm")))
sketch1.addConstraint(Sketcher.Constraint("DistanceX", -1, 1, 37, 3, Q("30.75 mm")))
sketch1.addConstraint(Sketcher.Constraint("DistanceY", -1, 1, 0, 2, Q("14.63 mm")))
sketch1.addConstraint(Sketcher.Constraint("DistanceX", 1, 2, -1, 1, Q("0.52 mm")))
sketch1.addConstraint(Sketcher.Constraint("DistanceY", -1, 1, 22, 2, Q("0.52 mm")))
sketch1.addConstraint(Sketcher.Constraint("DistanceX", 23, 2, -1, 1, Q("14.63 mm")))
sketch1.addConstraint(Sketcher.Constraint("DistanceX", 36, 1, 36, 2, Q("17.906628 mm")))
sketch1.addConstraint(Sketcher.Constraint("DistanceY", -1, 1, 5, 3, Q("13.828222 mm")))
sketch1.addConstraint(Sketcher.Constraint("DistanceY", -1, 1, 7, 3, Q("8.852121 mm")))
sketch1.addConstraint(Sketcher.Constraint("DistanceY", -1, 1, 11, 3, Q("5.780109 mm")))
sketch1.addConstraint(Sketcher.Constraint("DistanceX", 13, 3, -1, 1, Q("5.780109 mm")))
sketch1.addConstraint(Sketcher.Constraint("DistanceX", 17, 3, -1, 1, Q("8.852121 mm")))
sketch1.addConstraint(Sketcher.Constraint("DistanceX", 19, 3, -1, 1, Q("13.828222 mm")))
sketch1.addConstraint(Sketcher.Constraint("DistanceY", -1, 1, 3, 2, Q("14.211729 mm")))
sketch1.addConstraint(Sketcher.Constraint("DistanceX", 4, 2, -1, 1, Q("4.08596 mm")))
sketch1.addConstraint(Sketcher.Constraint("DistanceY", -1, 1, 7, 2, Q("12.824952 mm")))
sketch1.addConstraint(Sketcher.Constraint("DistanceX", 9, 2, -1, 1, Q("6.647381 mm")))
sketch1.addConstraint(Sketcher.Constraint("DistanceX", 11, 2, -1, 1, Q("10.125769 mm")))
sketch1.addConstraint(Sketcher.Constraint("DistanceY", -1, 1, 12, 2, Q("10.125769 mm")))
sketch1.addConstraint(Sketcher.Constraint("DistanceY", -1, 1, 14, 2, Q("6.647381 mm")))
sketch1.addConstraint(Sketcher.Constraint("DistanceX", 15, 2, -1, 1, Q("12.514952 mm")))
sketch1.addConstraint(Sketcher.Constraint("DistanceX", 19, 2, -1, 1, Q("14.051261 mm")))
sketch1.addConstraint(Sketcher.Constraint("DistanceX", 3, 3, -1, 1, Q("8.048112 mm")))
sketch1.addConstraint(Sketcher.Constraint("DistanceX", 7, 3, -1, 1, Q("10.703938 mm")))
sketch1.addConstraint(Sketcher.Constraint("DistanceX", 15, 3, -1, 1, Q("13.695942 mm")))
sketch1.addConstraint(Sketcher.Constraint("DistanceX", 21, 3, -1, 1, Q("11.320875 mm")))
pad1 = doc.addObject("PartDesign::Pad", "Pad")
body.addObject(pad1)
pad1.Profile = sketch1
pad1.Length = 10

sketch2 = doc.addObject("Sketcher::SketchObject", "Sketch001")
body.addObject(sketch2)
sketch2.AttachmentSupport = (doc.XY_Plane, [""])
sketch2.MapMode = "FlatFace"
sketch2.AttachmentOffset = App.Placement(Vector(0, 0, 10), App.Rotation())
sketch2.addGeometry(Part.Circle(Vector(0, 0, 0), Vector(0, 0, 1), 2.4), False)
sketch2.addGeometry(Part.Circle(Vector(4.5, 0, 0), Vector(0, 0, 1), 1.3), False)
sketch2.addGeometry(Part.Circle(Vector(-4.5, 0, 0), Vector(0, 0, 1), 1.3), False)
sketch2.addConstraint(Sketcher.Constraint("Coincident", 0, 3, -1, 1))
sketch2.addConstraint(Sketcher.Constraint("Equal", 1, 2))
sketch2.addConstraint(Sketcher.Constraint("Symmetric", 1, 3, 2, 3, -1, 1))
sketch2.addConstraint(Sketcher.Constraint("PointOnObject", 1, 3, -1))
sketch2.addConstraint(Sketcher.Constraint("Diameter", 0, Q("4.8 mm")))
sketch2.addConstraint(Sketcher.Constraint("Diameter", 1, Q("2.6 mm")))
sketch2.addConstraint(Sketcher.Constraint("DistanceX", 2, 3, 1, 3, Q("9 mm")))
pocket1 = doc.addObject("PartDesign::Pocket", "Pocket")
body.addObject(pocket1)
pocket1.Profile = sketch2
pocket1.Type = "ThroughAll"

doc.recompute()
